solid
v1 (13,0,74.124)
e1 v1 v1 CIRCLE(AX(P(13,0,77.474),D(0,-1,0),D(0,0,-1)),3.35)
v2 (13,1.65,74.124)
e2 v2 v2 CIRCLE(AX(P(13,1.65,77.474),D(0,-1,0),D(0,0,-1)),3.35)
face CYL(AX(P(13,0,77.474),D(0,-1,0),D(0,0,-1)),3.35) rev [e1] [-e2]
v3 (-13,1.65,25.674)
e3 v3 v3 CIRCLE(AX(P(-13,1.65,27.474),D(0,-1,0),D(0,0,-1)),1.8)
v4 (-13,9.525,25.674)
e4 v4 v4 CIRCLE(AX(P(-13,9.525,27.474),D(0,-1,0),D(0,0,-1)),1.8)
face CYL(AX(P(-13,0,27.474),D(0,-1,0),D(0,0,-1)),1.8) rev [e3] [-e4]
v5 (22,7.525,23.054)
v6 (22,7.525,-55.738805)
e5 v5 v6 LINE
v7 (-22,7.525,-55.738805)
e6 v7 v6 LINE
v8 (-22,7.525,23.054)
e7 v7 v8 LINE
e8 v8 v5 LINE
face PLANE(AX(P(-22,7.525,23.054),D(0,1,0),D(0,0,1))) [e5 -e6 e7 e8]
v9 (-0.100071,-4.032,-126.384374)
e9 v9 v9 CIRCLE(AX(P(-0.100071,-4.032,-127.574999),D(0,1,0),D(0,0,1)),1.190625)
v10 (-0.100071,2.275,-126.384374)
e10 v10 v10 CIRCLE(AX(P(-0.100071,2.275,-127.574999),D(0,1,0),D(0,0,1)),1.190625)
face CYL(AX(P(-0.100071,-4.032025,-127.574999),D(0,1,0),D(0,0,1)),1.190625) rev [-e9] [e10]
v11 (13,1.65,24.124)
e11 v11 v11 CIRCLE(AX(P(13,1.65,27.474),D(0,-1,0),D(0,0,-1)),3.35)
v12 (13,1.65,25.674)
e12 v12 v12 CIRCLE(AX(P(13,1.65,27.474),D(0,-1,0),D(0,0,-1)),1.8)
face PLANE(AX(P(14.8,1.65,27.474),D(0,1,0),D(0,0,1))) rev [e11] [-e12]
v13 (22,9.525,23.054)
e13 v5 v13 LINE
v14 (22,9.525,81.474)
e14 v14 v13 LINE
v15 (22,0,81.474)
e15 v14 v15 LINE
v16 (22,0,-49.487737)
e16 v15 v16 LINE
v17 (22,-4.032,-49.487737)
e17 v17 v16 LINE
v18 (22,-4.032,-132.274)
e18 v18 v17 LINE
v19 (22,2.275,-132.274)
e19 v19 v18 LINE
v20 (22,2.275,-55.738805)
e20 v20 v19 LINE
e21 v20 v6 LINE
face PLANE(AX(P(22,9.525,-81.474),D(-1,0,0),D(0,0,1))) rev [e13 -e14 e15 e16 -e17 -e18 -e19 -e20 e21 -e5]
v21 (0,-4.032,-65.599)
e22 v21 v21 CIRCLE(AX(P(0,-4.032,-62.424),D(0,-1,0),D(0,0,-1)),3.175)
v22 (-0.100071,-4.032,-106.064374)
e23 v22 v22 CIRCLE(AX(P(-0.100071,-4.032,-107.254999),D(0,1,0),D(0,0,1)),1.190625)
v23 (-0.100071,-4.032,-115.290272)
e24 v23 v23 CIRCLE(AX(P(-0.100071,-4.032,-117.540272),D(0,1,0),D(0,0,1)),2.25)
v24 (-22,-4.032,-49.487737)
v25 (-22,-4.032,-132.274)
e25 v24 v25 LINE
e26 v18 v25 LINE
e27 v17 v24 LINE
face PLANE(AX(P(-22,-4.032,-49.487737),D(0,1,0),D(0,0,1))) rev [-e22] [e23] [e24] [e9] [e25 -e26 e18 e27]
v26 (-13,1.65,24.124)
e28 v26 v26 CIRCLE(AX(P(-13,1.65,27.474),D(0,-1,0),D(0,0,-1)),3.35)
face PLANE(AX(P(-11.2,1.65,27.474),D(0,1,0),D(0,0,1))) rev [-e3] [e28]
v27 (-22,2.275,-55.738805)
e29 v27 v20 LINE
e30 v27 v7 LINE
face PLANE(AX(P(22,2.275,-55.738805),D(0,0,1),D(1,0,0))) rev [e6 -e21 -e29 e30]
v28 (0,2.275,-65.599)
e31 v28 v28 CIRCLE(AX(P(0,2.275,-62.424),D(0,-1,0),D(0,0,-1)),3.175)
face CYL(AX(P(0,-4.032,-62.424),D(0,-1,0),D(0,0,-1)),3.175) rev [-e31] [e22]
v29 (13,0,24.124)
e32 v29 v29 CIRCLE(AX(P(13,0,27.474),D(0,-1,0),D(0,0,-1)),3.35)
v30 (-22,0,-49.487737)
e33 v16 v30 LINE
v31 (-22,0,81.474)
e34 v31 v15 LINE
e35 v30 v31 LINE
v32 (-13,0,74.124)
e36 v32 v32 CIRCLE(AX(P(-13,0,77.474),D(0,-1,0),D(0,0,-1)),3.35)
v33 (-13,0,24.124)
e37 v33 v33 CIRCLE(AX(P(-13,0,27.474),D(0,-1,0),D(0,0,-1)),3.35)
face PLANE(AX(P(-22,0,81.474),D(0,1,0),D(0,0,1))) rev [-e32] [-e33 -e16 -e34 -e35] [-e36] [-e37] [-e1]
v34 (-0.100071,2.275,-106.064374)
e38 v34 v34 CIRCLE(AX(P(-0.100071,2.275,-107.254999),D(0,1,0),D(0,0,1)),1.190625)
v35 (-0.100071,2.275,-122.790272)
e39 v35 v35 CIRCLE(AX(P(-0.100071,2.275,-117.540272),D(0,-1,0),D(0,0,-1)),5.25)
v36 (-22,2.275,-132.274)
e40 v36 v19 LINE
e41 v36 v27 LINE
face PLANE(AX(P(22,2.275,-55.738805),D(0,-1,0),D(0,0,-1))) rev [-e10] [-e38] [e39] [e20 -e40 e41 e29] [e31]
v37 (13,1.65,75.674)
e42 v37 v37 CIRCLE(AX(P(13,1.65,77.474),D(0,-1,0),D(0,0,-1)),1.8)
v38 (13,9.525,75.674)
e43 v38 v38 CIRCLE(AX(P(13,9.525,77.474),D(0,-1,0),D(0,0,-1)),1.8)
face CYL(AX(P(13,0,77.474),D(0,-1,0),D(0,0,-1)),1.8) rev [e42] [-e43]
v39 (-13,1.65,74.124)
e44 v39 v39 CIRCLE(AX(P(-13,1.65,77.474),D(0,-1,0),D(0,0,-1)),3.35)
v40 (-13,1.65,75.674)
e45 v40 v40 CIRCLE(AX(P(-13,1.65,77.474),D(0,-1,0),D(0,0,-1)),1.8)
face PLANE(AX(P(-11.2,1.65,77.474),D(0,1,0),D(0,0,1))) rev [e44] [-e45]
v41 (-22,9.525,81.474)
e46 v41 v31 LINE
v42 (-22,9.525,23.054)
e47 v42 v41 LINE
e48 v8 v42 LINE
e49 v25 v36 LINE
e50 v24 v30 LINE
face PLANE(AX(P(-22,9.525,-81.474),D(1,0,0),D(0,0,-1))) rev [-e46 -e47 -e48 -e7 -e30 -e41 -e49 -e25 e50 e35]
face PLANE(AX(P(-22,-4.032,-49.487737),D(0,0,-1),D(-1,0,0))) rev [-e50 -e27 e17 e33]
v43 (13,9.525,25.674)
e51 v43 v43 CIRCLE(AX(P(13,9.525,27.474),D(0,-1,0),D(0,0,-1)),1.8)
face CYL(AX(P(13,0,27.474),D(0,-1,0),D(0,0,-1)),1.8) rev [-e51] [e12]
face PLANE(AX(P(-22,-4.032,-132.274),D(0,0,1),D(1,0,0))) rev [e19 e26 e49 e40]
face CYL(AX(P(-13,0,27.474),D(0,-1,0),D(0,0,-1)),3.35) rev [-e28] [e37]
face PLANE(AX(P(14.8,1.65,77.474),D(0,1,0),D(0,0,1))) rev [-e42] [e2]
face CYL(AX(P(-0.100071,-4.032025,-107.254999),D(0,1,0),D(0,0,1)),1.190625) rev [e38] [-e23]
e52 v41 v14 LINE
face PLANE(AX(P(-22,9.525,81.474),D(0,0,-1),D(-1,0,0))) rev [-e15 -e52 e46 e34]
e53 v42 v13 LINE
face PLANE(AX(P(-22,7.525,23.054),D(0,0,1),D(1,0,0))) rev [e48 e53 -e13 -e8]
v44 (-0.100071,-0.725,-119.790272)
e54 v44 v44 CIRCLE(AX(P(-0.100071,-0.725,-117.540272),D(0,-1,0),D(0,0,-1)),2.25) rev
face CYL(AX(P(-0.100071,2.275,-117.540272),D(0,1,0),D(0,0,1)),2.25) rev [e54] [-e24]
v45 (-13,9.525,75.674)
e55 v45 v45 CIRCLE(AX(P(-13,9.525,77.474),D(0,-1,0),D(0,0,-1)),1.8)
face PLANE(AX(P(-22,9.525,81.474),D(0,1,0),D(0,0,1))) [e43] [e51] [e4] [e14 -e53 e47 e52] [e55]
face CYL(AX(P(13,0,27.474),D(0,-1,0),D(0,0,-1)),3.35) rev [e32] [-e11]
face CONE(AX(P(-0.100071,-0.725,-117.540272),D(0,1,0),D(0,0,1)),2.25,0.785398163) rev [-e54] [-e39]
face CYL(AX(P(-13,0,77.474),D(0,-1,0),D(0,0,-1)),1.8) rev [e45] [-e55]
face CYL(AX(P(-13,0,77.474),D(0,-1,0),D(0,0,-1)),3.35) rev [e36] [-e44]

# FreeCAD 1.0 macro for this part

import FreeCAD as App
import Part
import Sketcher
from FreeCAD import Vector
Q = App.Units.Quantity


def edges_at(feature, points):
    """Names of the edges that pass closest to the given points."""
    edges = feature.Shape.Edges
    near = lambda p: min(range(len(edges)), key=lambda i: edges[i].distToShape(Part.Vertex(*p))[0])
    return sorted({f"Edge{near(p) + 1}" for p in points})


def add_polygon(sketch, points):
    """Adds a closed chain of lines whose ends are joined by coincident constraints."""
    first, n = sketch.GeometryCount, len(points)
    for a, b in zip(points, points[1:] + points[:1]):
        sketch.addGeometry(Part.LineSegment(App.Vector(*a, 0), App.Vector(*b, 0)), False)
    for i in range(n):
        sketch.addConstraint(Sketcher.Constraint("Coincident", first + i, 2, first + (i + 1) % n, 1))

doc = App.newDocument("Part")
body = doc.addObject("PartDesign::Body", "Body")

# Sketch on XZ plane
sketch1 = doc.addObject("Sketcher::SketchObject", "Sketch")
body.addObject(sketch1)
sketch1.AttachmentSupport = (doc.XZ_Plane, [""])
sketch1.MapMode = "FlatFace"
add_polygon(sketch1, [(-22, -81), (-22, 81), (22, 81), (22, -81)])  # lines 0-3
sketch1.addConstraint([
    Sketcher.Constraint("Vertical", 0),
    Sketcher.Constraint("Horizontal", 1),
    Sketcher.Constraint("Vertical", 2),
    Sketcher.Constraint("Horizontal", 3),
    Sketcher.Constraint("Symmetric", 0, 2, 2, 2, -1, 1),
    Sketcher.Constraint("DistanceX", 1, 1, 1, 2, Q("44 mm")),
    Sketcher.Constraint("DistanceY", 0, 1, 0, 2, Q("162.948 mm")),
])
pad1 = doc.addObject("PartDesign::Pad", "Pad")
body.addObject(pad1)
pad1.Profile = sketch1
pad1.Length = 9.525
pad1.Reversed = True

# Sketch on XZ plane
sketch2 = doc.addObject("Sketcher::SketchObject", "Sketch001")
body.addObject(sketch2)
sketch2.AttachmentSupport = (doc.XZ_Plane, [""])
sketch2.MapMode = "FlatFace"
sketch2.AttachmentOffset = App.Placement(Vector(0, 0, -9.525), App.Rotation())
add_polygon(sketch2, [(-22, -81), (-22, 23), (22, 23), (22, -81)])  # lines 0-3
sketch2.addConstraint([
    Sketcher.Constraint("Vertical", 0),
    Sketcher.Constraint("Horizontal", 1),
    Sketcher.Constraint("Vertical", 2),
    Sketcher.Constraint("Horizontal", 3),
    Sketcher.Constraint("DistanceX", 1, 1, 1, 2, Q("44 mm")),
    Sketcher.Constraint("DistanceX", 0, 2, -1, 1, Q("22 mm")),
    Sketcher.Constraint("DistanceY", 0, 1, 0, 2, Q("104.528 mm")),
    Sketcher.Constraint("DistanceY", -1, 1, 0, 2, Q("23.054 mm")),
])
pocket1 = doc.addObject("PartDesign::Pocket", "Pocket")
body.addObject(pocket1)
pocket1.Profile = sketch2
pocket1.Length = 2
pocket1.Reversed = True

# Sketch on XZ plane
sketch3 = doc.addObject("Sketcher::SketchObject", "Sketch002")
body.addObject(sketch3)
sketch3.AttachmentSupport = (doc.XZ_Plane, [""])
sketch3.MapMode = "FlatFace"
sketch3.AttachmentOffset = App.Placement(Vector(0, 0, -7.525), App.Rotation())
add_polygon(sketch3, [(-22, -81), (-22, -56), (22, -56), (22, -81)])  # lines 0-3
sketch3.addConstraint([
    Sketcher.Constraint("Vertical", 0),
    Sketcher.Constraint("Horizontal", 1),
    Sketcher.Constraint("Vertical", 2),
    Sketcher.Constraint("Horizontal", 3),
    Sketcher.Constraint("DistanceX", 1, 1, 1, 2, Q("44 mm")),
    Sketcher.Constraint("DistanceX", 0, 2, -1, 1, Q("22 mm")),
    Sketcher.Constraint("DistanceY", 2, 2, -1, 1, Q("81.474 mm")),
    Sketcher.Constraint("DistanceY", 0, 1, 0, 2, Q("25.735195 mm")),
])
pocket2 = doc.addObject("PartDesign::Pocket", "Pocket001")
body.addObject(pocket2)
pocket2.Profile = sketch3
pocket2.Length = 5.25
pocket2.Reversed = True

# Sketch on XZ plane
sketch4 = doc.addObject("Sketcher::SketchObject", "Sketch003")
body.addObject(sketch4)
sketch4.AttachmentSupport = (doc.XZ_Plane, [""])
sketch4.MapMode = "FlatFace"
add_polygon(sketch4, [(-22, -49), (-22, -81), (22, -81), (22, -49)])  # lines 0-3
sketch4.addConstraint([
    Sketcher.Constraint("Vertical", 0),
    Sketcher.Constraint("Horizontal", 1),
    Sketcher.Constraint("Vertical", 2),
    Sketcher.Constraint("Horizontal", 3),
    Sketcher.Constraint("DistanceX", 1, 1, 1, 2, Q("44 mm")),
    Sketcher.Constraint("DistanceX", 0, 2, -1, 1, Q("22 mm")),
    Sketcher.Constraint("DistanceY", 0, 2, -1, 1, Q("81.474 mm")),
    Sketcher.Constraint("DistanceY", 0, 2, 0, 1, Q("31.986263 mm")),
])
pad2 = doc.addObject("PartDesign::Pad", "Pad001")
body.addObject(pad2)
pad2.Profile = sketch4
pad2.Length = 4.032

# Sketch on XZ plane
sketch5 = doc.addObject("Sketcher::SketchObject", "Sketch004")
body.addObject(sketch5)
sketch5.AttachmentSupport = (doc.XZ_Plane, [""])
sketch5.MapMode = "FlatFace"
sketch5.AttachmentOffset = App.Placement(Vector(0, 0, 4.032), App.Rotation())
sketch5.addGeometry(Part.Circle(Vector(0, -62.4, 0), Vector(0, 0, 1), 3.2), False)
sketch5.addConstraint([
    Sketcher.Constraint("PointOnObject", 0, 3, -2),
    Sketcher.Constraint("Diameter", 0, Q("6.35 mm")),
    Sketcher.Constraint("DistanceY", 0, 3, -1, 1, Q("62.424 mm")),
])
doc.recompute()
hole = doc.addObject("PartDesign::Hole", "Hole")
body.addObject(hole)
hole.Profile = sketch5
hole.ThreadType = "None"
hole.Diameter = 6.35
hole.DepthType = "Dimension"
hole.Depth = 18.618
hole.DrillPoint = "Flat"

# Sketch on XY plane
sketch6 = doc.addObject("Sketcher::SketchObject", "Sketch005")
body.addObject(sketch6)
sketch6.AttachmentSupport = (doc.XY_Plane, [""])
sketch6.MapMode = "FlatFace"
sketch6.AttachmentOffset = App.Placement(Vector(0, 0, -81.474), App.Rotation())
add_polygon(sketch6, [(22, 2), (22, -4), (-22, -4), (-22, 2)])  # lines 0-3
sketch6.addConstraint([
    Sketcher.Constraint("Vertical", 0),
    Sketcher.Constraint("Horizontal", 1),
    Sketcher.Constraint("Vertical", 2),
    Sketcher.Constraint("Horizontal", 3),
    Sketcher.Constraint("DistanceX", 1, 2, 1, 1, Q("44 mm")),
    Sketcher.Constraint("DistanceX", -1, 1, 0, 2, Q("22 mm")),
    Sketcher.Constraint("DistanceY", 0, 2, 0, 1, Q("6.307 mm")),
    Sketcher.Constraint("DistanceY", 0, 2, -1, 1, Q("4.032 mm")),
])
pad3 = doc.addObject("PartDesign::Pad", "Pad002")
body.addObject(pad3)
pad3.Profile = sketch6
pad3.Length = 50.8
pad3.Reversed = True

# Sketch on XZ plane
sketch7 = doc.addObject("Sketcher::SketchObject", "Sketch006")
body.addObject(sketch7)
sketch7.AttachmentSupport = (doc.XZ_Plane, [""])
sketch7.MapMode = "FlatFace"
sketch7.addGeometry([
    Part.Circle(Vector(-13, 77.5, 0), Vector(0, 0, 1), 1.8),
    Part.Circle(Vector(13, 77.5, 0), Vector(0, 0, 1), 1.8),
    Part.Circle(Vector(13, 27.5, 0), Vector(0, 0, 1), 1.8),
    Part.Circle(Vector(-13, 27.5, 0), Vector(0, 0, 1), 1.8),
], False)
sketch7.addConstraint([
    Sketcher.Constraint("Equal", 0, 1),
    Sketcher.Constraint("Equal", 1, 2),
    Sketcher.Constraint("Equal", 2, 3),
    Sketcher.Constraint("Symmetric", 0, 3, 1, 3, -2),
    Sketcher.Constraint("Symmetric", 2, 3, 3, 3, -2),
    Sketcher.Constraint("Vertical", 1, 3, 2, 3),
    Sketcher.Constraint("Diameter", 0, Q("3.6 mm")),
    Sketcher.Constraint("DistanceX", 0, 3, -1, 1, Q("13 mm")),
    Sketcher.Constraint("DistanceY", 2, 3, 1, 3, Q("50 mm")),
    Sketcher.Constraint("DistanceY", -1, 1, 0, 3, Q("77.474 mm")),
])
doc.recompute()
hole2 = doc.addObject("PartDesign::Hole", "Hole001")
body.addObject(hole2)
hole2.Profile = sketch7
hole2.ThreadType = "None"
hole2.Diameter = 3.6
hole2.DepthType = "ThroughAll"
hole2.HoleCutType = "Counterbore"
hole2.HoleCutDiameter = 6.7
hole2.HoleCutDepth = 1.65

# Sketch on XZ plane
sketch8 = doc.addObject("Sketcher::SketchObject", "Sketch007")
body.addObject(sketch8)
sketch8.AttachmentSupport = (doc.XZ_Plane, [""])
sketch8.MapMode = "FlatFace"
sketch8.AttachmentOffset = App.Placement(Vector(0, 0, -2.275), App.Rotation())
sketch8.addGeometry([
    Part.Circle(Vector(-0.1, -127.6, 0), Vector(0, 0, 1), 1.2),
    Part.Circle(Vector(-0.1, -107.3, 0), Vector(0, 0, 1), 1.2),
], False)
sketch8.addConstraint([
    Sketcher.Constraint("Equal", 0, 1),
    Sketcher.Constraint("Vertical", 0, 3, 1, 3),
    Sketcher.Constraint("Diameter", 0, Q("2.38125 mm")),
    Sketcher.Constraint("DistanceY", 0, 3, 1, 3, Q("20.32 mm")),
    Sketcher.Constraint("DistanceY", 0, 3, -1, 1, Q("127.574999 mm")),
    Sketcher.Constraint("DistanceX", 0, 3, -1, 1, Q("0.100071 mm")),
])
pocket3 = doc.addObject("PartDesign::Pocket", "Pocket002")
body.addObject(pocket3)
pocket3.Profile = sketch8
pocket3.Type = "ThroughAll"
pocket3.Reversed = True

# Sketch on XZ plane
sketch9 = doc.addObject("Sketcher::SketchObject", "Sketch008")
body.addObject(sketch9)
sketch9.AttachmentSupport = (doc.XZ_Plane, [""])
sketch9.MapMode = "FlatFace"
sketch9.AttachmentOffset = App.Placement(Vector(0, 0, -2.275), App.Rotation())
sketch9.addGeometry(Part.Circle(Vector(-0.1, -117.5, 0), Vector(0, 0, 1), 2.2), False)
sketch9.addConstraint([
    Sketcher.Constraint("Diameter", 0, Q("4.5 mm")),
    Sketcher.Constraint("DistanceX", 0, 3, -1, 1, Q("0.100071 mm")),
    Sketcher.Constraint("DistanceY", 0, 3, -1, 1, Q("117.540272 mm")),
])
doc.recompute()
hole3 = doc.addObject("PartDesign::Hole", "Hole002")
body.addObject(hole3)
hole3.Profile = sketch9
hole3.ThreadType = "None"
hole3.Diameter = 4.5
hole3.DepthType = "Dimension"
hole3.Depth = 8.204
hole3.DrillPoint = "Flat"
hole3.Reversed = True
doc.recompute()

chamfer = doc.addObject("PartDesign::Chamfer", "Chamfer")
body.addObject(chamfer)
chamfer.Base = (hole3, edges_at(hole3, [(-2.35, 2.275, -117.54)]))
chamfer.Size = 3

doc.recompute()
